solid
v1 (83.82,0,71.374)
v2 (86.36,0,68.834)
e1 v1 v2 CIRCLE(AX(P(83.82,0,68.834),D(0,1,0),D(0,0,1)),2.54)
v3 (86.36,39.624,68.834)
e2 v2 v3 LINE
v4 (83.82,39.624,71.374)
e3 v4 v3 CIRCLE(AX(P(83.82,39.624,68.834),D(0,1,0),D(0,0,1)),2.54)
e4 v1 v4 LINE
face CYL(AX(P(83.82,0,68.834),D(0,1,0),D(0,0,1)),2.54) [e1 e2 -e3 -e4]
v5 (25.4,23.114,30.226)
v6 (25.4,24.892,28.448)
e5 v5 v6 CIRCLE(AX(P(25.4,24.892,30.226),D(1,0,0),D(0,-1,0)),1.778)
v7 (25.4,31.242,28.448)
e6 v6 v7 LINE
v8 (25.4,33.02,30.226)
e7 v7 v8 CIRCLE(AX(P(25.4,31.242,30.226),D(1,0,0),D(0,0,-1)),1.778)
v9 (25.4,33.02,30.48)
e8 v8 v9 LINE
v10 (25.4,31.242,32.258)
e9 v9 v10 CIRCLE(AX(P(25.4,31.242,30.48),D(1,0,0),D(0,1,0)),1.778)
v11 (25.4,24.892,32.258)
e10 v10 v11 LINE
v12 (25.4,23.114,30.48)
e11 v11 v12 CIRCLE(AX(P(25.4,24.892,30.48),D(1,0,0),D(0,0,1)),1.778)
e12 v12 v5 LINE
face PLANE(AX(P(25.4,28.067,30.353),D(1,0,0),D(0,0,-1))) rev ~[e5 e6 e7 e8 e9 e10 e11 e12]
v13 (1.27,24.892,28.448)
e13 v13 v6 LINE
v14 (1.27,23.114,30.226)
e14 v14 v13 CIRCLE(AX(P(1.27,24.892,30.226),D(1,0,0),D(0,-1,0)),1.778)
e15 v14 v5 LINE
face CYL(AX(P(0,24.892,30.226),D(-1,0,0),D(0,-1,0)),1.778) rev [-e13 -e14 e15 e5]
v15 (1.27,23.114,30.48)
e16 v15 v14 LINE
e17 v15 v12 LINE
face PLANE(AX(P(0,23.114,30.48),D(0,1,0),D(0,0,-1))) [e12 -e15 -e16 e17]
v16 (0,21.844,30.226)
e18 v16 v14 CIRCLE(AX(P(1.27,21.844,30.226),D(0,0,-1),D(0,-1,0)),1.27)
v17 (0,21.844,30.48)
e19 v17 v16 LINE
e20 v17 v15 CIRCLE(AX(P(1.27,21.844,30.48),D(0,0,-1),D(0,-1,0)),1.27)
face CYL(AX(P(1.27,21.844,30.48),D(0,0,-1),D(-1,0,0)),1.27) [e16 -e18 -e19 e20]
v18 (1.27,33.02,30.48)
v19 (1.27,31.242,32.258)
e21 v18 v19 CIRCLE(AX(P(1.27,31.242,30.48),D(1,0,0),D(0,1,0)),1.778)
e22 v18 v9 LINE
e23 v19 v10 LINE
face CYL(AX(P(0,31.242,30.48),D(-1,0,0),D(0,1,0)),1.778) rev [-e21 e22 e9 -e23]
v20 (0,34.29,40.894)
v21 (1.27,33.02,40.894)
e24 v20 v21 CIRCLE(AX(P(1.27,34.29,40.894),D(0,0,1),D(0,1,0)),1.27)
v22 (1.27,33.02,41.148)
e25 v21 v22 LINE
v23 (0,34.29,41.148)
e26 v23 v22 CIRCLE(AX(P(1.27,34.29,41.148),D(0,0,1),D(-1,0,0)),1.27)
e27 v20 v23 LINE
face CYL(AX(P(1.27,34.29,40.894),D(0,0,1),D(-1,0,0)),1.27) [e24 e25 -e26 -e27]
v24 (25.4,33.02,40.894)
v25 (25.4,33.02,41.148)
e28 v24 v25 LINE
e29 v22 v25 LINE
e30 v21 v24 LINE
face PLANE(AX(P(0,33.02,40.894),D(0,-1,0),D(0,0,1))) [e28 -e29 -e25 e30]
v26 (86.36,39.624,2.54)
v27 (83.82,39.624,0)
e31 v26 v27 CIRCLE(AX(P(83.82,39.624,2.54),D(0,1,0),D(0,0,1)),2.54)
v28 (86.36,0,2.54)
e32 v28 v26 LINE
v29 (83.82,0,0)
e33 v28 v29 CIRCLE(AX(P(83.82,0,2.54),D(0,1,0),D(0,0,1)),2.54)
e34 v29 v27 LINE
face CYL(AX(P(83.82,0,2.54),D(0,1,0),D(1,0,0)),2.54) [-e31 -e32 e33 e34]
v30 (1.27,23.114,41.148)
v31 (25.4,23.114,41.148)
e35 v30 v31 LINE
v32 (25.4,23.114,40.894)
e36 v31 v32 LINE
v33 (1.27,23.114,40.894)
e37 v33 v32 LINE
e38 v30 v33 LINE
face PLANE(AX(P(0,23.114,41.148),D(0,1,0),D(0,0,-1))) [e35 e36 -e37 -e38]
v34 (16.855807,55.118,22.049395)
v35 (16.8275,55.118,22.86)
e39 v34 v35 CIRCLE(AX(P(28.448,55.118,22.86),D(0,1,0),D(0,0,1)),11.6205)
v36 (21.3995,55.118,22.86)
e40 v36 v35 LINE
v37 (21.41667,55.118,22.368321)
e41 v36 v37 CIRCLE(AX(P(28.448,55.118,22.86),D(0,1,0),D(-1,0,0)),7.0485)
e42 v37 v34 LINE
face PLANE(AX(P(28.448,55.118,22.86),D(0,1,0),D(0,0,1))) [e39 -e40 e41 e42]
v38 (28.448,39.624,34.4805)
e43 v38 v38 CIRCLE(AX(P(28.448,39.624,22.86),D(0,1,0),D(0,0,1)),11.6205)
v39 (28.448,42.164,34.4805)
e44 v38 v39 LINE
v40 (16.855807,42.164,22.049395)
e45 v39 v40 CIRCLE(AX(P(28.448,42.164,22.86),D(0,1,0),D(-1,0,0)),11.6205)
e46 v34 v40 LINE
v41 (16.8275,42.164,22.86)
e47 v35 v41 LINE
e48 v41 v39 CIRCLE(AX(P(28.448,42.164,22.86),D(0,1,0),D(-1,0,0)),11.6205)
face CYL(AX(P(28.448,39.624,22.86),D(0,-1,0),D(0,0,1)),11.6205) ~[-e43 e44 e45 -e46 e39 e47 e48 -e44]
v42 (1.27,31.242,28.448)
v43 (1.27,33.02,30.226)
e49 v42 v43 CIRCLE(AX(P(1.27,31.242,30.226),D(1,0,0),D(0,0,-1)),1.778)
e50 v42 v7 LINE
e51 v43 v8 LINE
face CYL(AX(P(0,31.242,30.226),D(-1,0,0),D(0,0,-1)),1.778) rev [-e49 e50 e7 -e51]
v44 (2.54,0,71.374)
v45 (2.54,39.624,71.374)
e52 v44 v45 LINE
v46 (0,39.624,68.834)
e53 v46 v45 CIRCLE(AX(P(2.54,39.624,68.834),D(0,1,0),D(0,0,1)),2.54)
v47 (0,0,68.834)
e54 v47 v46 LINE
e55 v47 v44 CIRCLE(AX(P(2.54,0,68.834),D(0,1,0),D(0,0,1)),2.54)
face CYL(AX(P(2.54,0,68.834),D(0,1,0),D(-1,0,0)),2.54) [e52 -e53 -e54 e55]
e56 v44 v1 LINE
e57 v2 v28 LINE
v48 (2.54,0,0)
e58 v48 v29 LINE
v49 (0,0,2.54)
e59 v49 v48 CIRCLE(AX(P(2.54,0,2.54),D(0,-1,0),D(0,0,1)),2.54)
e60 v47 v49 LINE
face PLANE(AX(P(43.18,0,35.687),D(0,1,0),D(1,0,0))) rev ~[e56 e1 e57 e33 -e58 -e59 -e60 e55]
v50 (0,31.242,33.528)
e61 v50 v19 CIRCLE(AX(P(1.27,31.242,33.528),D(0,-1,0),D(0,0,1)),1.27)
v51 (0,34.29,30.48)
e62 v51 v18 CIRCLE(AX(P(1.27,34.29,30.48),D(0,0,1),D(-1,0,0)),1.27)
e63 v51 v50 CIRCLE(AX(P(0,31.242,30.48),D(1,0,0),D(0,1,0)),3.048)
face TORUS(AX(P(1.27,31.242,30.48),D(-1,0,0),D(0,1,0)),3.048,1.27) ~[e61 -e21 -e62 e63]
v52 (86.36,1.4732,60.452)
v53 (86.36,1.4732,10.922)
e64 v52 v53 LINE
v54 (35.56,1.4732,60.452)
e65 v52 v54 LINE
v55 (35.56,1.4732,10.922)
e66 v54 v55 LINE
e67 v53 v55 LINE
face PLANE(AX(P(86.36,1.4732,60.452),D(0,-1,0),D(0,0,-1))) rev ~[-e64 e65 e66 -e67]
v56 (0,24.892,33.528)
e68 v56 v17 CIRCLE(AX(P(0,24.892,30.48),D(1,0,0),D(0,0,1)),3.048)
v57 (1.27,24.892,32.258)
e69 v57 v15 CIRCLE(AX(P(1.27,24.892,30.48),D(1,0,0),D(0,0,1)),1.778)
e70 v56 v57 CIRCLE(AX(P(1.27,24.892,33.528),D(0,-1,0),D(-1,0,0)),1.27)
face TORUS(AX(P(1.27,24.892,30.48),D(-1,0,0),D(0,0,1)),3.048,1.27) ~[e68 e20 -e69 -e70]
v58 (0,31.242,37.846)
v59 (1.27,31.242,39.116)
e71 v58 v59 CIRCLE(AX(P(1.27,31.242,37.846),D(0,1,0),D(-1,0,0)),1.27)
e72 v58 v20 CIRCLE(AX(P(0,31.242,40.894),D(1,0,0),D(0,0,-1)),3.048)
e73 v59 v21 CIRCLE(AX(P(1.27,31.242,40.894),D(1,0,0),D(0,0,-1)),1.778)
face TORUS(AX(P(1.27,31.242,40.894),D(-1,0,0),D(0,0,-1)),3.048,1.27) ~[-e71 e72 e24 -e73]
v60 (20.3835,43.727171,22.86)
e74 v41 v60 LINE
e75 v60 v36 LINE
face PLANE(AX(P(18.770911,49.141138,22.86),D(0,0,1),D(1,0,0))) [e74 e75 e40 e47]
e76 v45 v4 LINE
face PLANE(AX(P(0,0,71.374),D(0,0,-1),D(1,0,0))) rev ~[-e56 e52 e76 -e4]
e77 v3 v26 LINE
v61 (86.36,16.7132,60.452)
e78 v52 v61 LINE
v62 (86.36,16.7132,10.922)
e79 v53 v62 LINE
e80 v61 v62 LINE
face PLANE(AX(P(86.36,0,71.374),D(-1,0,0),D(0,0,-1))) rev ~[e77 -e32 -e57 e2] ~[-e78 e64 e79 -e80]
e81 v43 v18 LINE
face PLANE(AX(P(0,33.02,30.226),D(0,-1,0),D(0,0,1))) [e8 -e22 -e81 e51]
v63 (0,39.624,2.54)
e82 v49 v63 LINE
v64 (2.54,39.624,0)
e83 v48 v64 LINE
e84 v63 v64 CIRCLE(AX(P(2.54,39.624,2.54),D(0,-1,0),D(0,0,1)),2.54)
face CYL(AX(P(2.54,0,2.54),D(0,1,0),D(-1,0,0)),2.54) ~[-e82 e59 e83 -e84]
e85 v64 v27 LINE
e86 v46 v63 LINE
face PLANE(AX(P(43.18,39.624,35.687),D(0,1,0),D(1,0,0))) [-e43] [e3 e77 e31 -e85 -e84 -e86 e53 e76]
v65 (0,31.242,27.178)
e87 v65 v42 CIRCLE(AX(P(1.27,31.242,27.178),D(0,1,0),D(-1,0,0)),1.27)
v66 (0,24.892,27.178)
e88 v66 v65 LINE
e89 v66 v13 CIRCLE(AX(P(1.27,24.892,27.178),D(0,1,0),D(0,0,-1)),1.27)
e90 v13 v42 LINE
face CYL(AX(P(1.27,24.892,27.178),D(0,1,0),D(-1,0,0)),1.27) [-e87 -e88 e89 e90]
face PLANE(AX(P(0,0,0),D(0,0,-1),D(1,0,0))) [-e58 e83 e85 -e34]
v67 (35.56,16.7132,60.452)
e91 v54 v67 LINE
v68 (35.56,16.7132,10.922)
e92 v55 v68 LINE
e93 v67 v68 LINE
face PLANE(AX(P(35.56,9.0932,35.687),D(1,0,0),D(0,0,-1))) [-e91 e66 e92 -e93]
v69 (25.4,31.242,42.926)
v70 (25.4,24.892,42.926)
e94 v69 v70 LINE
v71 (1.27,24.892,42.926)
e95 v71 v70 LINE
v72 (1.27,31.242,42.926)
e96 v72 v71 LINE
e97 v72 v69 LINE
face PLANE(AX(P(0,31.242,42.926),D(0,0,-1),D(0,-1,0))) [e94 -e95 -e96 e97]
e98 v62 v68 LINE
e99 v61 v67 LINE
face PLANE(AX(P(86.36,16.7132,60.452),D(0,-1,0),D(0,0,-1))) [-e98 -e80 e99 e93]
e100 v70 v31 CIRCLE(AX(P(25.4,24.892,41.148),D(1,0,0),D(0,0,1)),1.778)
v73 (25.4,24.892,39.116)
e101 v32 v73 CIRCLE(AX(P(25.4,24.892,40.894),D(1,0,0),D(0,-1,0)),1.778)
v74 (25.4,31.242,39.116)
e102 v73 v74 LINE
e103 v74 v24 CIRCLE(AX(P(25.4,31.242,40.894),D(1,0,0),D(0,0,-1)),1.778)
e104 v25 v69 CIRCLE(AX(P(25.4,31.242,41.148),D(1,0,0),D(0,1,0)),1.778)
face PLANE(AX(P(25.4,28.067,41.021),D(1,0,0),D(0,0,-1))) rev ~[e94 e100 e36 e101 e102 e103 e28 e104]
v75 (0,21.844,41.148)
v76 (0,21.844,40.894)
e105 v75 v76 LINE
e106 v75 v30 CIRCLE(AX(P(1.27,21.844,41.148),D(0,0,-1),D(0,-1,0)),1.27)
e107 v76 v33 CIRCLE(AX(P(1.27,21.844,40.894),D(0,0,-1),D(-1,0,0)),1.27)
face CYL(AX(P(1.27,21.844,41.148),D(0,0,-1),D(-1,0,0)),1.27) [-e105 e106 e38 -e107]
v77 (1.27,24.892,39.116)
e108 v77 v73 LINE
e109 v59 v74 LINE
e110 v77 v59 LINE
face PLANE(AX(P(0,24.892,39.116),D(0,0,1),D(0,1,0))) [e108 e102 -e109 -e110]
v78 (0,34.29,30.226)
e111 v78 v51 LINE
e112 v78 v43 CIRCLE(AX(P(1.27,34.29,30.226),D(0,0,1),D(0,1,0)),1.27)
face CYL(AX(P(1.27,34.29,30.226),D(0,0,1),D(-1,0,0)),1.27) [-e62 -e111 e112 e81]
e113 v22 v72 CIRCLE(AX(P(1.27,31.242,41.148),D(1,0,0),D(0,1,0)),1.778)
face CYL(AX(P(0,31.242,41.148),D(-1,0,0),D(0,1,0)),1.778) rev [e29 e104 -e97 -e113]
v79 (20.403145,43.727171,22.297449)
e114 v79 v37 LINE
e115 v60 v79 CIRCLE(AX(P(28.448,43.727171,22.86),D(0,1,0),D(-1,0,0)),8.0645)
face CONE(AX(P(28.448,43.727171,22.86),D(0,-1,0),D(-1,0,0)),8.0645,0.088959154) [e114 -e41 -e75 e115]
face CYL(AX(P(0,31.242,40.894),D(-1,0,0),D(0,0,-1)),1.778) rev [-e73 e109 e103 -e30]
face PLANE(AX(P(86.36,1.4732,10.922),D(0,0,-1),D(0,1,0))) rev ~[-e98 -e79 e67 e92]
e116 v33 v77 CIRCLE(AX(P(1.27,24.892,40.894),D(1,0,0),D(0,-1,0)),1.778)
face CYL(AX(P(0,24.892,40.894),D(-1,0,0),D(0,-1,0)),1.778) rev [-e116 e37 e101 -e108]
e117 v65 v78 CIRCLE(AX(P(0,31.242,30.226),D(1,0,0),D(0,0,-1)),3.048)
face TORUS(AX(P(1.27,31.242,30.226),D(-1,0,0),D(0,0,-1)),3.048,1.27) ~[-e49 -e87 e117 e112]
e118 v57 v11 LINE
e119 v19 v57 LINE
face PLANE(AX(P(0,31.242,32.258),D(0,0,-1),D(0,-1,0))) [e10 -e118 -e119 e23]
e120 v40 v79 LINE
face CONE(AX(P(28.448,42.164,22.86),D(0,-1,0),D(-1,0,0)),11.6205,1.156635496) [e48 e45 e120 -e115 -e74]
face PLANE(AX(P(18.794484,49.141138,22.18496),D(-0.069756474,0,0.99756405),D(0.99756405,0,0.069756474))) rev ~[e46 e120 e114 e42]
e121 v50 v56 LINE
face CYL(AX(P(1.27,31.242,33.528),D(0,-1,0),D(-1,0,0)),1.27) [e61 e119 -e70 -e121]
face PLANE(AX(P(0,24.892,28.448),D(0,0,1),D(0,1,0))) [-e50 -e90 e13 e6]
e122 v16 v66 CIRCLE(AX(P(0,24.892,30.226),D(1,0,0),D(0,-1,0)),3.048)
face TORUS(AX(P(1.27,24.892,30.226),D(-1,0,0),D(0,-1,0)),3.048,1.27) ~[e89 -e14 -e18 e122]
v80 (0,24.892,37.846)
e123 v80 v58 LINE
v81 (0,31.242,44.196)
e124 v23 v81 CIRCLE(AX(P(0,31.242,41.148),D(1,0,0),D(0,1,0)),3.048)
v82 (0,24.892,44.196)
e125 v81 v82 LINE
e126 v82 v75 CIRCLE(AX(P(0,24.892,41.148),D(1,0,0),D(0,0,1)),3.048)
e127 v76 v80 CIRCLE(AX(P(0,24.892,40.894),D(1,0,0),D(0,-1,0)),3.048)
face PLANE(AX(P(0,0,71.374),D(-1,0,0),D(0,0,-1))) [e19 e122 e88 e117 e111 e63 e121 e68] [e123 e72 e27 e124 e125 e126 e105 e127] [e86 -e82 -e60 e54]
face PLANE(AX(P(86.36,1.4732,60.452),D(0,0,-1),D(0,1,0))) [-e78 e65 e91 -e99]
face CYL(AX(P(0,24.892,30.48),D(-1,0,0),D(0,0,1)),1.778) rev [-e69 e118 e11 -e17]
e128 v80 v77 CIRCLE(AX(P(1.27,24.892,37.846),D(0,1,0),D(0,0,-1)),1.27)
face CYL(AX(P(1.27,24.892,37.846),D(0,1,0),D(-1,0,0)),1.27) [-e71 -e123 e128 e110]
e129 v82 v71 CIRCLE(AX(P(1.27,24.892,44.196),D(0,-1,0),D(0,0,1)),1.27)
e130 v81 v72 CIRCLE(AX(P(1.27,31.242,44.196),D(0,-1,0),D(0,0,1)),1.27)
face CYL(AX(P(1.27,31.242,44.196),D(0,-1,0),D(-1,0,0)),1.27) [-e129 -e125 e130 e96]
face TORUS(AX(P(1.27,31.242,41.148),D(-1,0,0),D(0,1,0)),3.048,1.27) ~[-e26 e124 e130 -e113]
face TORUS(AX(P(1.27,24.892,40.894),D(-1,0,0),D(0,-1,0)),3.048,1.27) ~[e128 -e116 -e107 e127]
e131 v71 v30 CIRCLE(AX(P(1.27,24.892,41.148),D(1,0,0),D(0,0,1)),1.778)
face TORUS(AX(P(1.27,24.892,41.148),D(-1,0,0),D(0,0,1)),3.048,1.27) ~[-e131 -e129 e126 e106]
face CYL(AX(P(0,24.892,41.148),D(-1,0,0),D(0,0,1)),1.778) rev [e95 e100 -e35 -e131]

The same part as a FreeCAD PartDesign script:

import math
import FreeCAD as App
import Part
import Sketcher
from FreeCAD import Vector
Q = App.Units.Quantity


def edges_at(feature, points):
    """Names of the edges that pass closest to the given points."""
    edges = feature.Shape.Edges
    near = lambda p: min(range(len(edges)), key=lambda i: edges[i].distToShape(Part.Vertex(*p))[0])
    return sorted({f"Edge{near(p) + 1}" for p in points})

doc = App.newDocument("Part")
body = doc.addObject("PartDesign::Body", "Body")

# Sketch on XZ plane
sketch1 = doc.addObject("Sketcher::SketchObject", "Sketch")
body.addObject(sketch1)
sketch1.AttachmentSupport = (doc.XZ_Plane, [""])
sketch1.MapMode = "FlatFace"
sketch1.addGeometry([
    Part.LineSegment(Vector(0, 0, 0), Vector(0, 71.374, 0)),
    Part.LineSegment(Vector(0, 71.374, 0), Vector(86.36, 71.374, 0)),
    Part.LineSegment(Vector(86.36, 71.374, 0), Vector(86.36, 0, 0)),
    Part.LineSegment(Vector(86.36, 0, 0), Vector(0, 0, 0)),
], False)
sketch1.addConstraint([
    Sketcher.Constraint("Coincident", 0, 2, 1, 1),
    Sketcher.Constraint("Coincident", 1, 2, 2, 1),
    Sketcher.Constraint("Coincident", 2, 2, 3, 1),
    Sketcher.Constraint("Coincident", 3, 2, 0, 1),
    Sketcher.Constraint("Vertical", 0),
    Sketcher.Constraint("Horizontal", 1),
    Sketcher.Constraint("Vertical", 2),
    Sketcher.Constraint("Horizontal", 3),
    Sketcher.Constraint("Coincident", 3, 2, -1, 1),
    Sketcher.Constraint("DistanceX", 1, 1, 1, 2, Q("3.4 in")),
    Sketcher.Constraint("DistanceY", 0, 1, 0, 2, Q("2.81 in")),
])
pad1 = doc.addObject("PartDesign::Pad", "Pad")
body.addObject(pad1)
pad1.Profile = sketch1
pad1.Length = Q("1.56 in")
pad1.Reversed = True
doc.recompute()

fillet = doc.addObject("PartDesign::Fillet", "Fillet")
body.addObject(fillet)
fillet.Base = (pad1, edges_at(pad1, [
    (0, 19.812, 0),
    (86.36, 19.812, 0),
    (86.36, 19.812, 71.374),
    (0, 19.812, 71.374),
]))
fillet.Radius = Q("0.1 in")

# Sketch on YZ plane
sketch2 = doc.addObject("Sketcher::SketchObject", "Sketch001")
body.addObject(sketch2)
sketch2.AttachmentSupport = (doc.YZ_Plane, [""])
sketch2.MapMode = "FlatFace"
sketch2.addGeometry([
    Part.LineSegment(Vector(33.02, 30.48, 0), Vector(33.02, 30.226, 0)),  # 0
    Part.ArcOfCircle(Part.Circle(Vector(31.242, 30.226, 0), Vector(0, 0, 1), 1.778), math.radians(-90), math.radians(0)),  # 1
    Part.LineSegment(Vector(31.242, 28.448, 0), Vector(24.892, 28.448, 0)),  # 2
    Part.ArcOfCircle(Part.Circle(Vector(24.892, 30.226, 0), Vector(0, 0, 1), 1.778), math.radians(180), math.radians(270)),  # 3
    Part.LineSegment(Vector(23.114, 30.226, 0), Vector(23.114, 30.48, 0)),  # 4
    Part.ArcOfCircle(Part.Circle(Vector(24.892, 30.48, 0), Vector(0, 0, 1), 1.778), math.radians(90), math.radians(180)),  # 5
    Part.LineSegment(Vector(24.892, 32.258, 0), Vector(31.242, 32.258, 0)),  # 6
    Part.ArcOfCircle(Part.Circle(Vector(31.242, 30.48, 0), Vector(0, 0, 1), 1.778), math.radians(0), math.radians(90)),  # 7
    Part.LineSegment(Vector(23.114, 40.894, 0), Vector(23.114, 41.148, 0)),  # 8
    Part.ArcOfCircle(Part.Circle(Vector(24.892, 41.148, 0), Vector(0, 0, 1), 1.778), math.radians(90), math.radians(180)),  # 9
    Part.LineSegment(Vector(24.892, 42.926, 0), Vector(31.242, 42.926, 0)),  # 10
    Part.ArcOfCircle(Part.Circle(Vector(31.242, 41.148, 0), Vector(0, 0, 1), 1.778), math.radians(0), math.radians(90)),  # 11
    Part.LineSegment(Vector(33.02, 41.148, 0), Vector(33.02, 40.894, 0)),  # 12
    Part.ArcOfCircle(Part.Circle(Vector(31.242, 40.894, 0), Vector(0, 0, 1), 1.778), math.radians(-90), math.radians(0)),  # 13
    Part.LineSegment(Vector(31.242, 39.116, 0), Vector(24.892, 39.116, 0)),  # 14
    Part.ArcOfCircle(Part.Circle(Vector(24.892, 40.894, 0), Vector(0, 0, 1), 1.778), math.radians(180), math.radians(270)),  # 15
], False)
sketch2.addConstraint([
    Sketcher.Constraint("Tangent", 0, 2, 1, 2),
    Sketcher.Constraint("Tangent", 1, 1, 2, 1),
    Sketcher.Constraint("Tangent", 2, 2, 3, 2),
    Sketcher.Constraint("Tangent", 3, 1, 4, 1),
    Sketcher.Constraint("Tangent", 4, 2, 5, 2),
    Sketcher.Constraint("Tangent", 5, 1, 6, 1),
    Sketcher.Constraint("Tangent", 6, 2, 7, 2),
    Sketcher.Constraint("Tangent", 7, 1, 0, 1),
    Sketcher.Constraint("Tangent", 8, 2, 9, 2),
    Sketcher.Constraint("Tangent", 9, 1, 10, 1),
    Sketcher.Constraint("Tangent", 10, 2, 11, 2),
    Sketcher.Constraint("Tangent", 11, 1, 12, 1),
    Sketcher.Constraint("Tangent", 12, 2, 13, 2),
    Sketcher.Constraint("Tangent", 13, 1, 14, 1),
    Sketcher.Constraint("Tangent", 14, 2, 15, 2),
    Sketcher.Constraint("Tangent", 15, 1, 8, 1),
    Sketcher.Constraint("Vertical", 0),
    Sketcher.Constraint("Horizontal", 2),
    Sketcher.Constraint("Vertical", 4),
    Sketcher.Constraint("Horizontal", 6),
    Sketcher.Constraint("Vertical", 8),
    Sketcher.Constraint("Horizontal", 10),
    Sketcher.Constraint("Vertical", 12),
    Sketcher.Constraint("Horizontal", 14),
    Sketcher.Constraint("Equal", 1, 3),
    Sketcher.Constraint("Equal", 3, 5),
    Sketcher.Constraint("Equal", 5, 7),
    Sketcher.Constraint("Equal", 7, 9),
    Sketcher.Constraint("Equal", 9, 11),
    Sketcher.Constraint("Equal", 11, 13),
    Sketcher.Constraint("Equal", 13, 15),
    Sketcher.Constraint("Vertical", 5, 3, 9, 3),
    Sketcher.Constraint("Vertical", 7, 3, 11, 3),
    Sketcher.Constraint("Equal", 4, 8),
    Sketcher.Constraint("Radius", 1, Q("0.07 in")),
    Sketcher.Constraint("DistanceX", 2, 2, 2, 1, Q("0.25 in")),
    Sketcher.Constraint("DistanceY", 0, 2, 0, 1, Q("0.01 in")),
    Sketcher.Constraint("DistanceY", -1, 1, 5, 3, Q("1.2 in")),
    Sketcher.Constraint("DistanceX", -1, 1, 0, 2, Q("1.3 in")),
    Sketcher.Constraint("DistanceY", -1, 1, 9, 3, Q("1.62 in")),
])
pocket1 = doc.addObject("PartDesign::Pocket", "Pocket")
body.addObject(pocket1)
pocket1.Profile = sketch2
pocket1.Length = Q("1 in")
pocket1.Reversed = True
doc.recompute()

fillet2 = doc.addObject("PartDesign::Fillet", "Fillet001")
body.addObject(fillet2)
fillet2.Base = (pocket1, edges_at(pocket1, [
    (0, 23.635, 28.969),
    (0, 23.114, 30.353),
    (0, 23.635, 31.737),
    (0, 28.067, 32.258),
    (0, 32.499, 31.737),
    (0, 33.02, 30.353),
    (0, 32.499, 28.969),
    (0, 28.067, 28.448),
    (0, 23.635, 42.405),
    (0, 28.067, 42.926),
    (0, 32.499, 42.405),
    (0, 33.02, 41.021),
    (0, 32.499, 39.637),
    (0, 28.067, 39.116),
    (0, 23.635, 39.637),
    (0, 23.114, 41.021),
]))
fillet2.Radius = Q("0.05 in")

# Sketch on YZ plane
sketch3 = doc.addObject("Sketcher::SketchObject", "Sketch002")
body.addObject(sketch3)
sketch3.AttachmentSupport = (doc.YZ_Plane, [""])
sketch3.MapMode = "FlatFace"
sketch3.AttachmentOffset = App.Placement(Vector(0, 0, 3.4 * 25.4), App.Rotation())
sketch3.addGeometry([
    Part.LineSegment(Vector(16.7132, 60.452, 0), Vector(1.4732, 60.452, 0)),
    Part.LineSegment(Vector(1.4732, 60.452, 0), Vector(1.4732, 10.922, 0)),
    Part.LineSegment(Vector(1.4732, 10.922, 0), Vector(16.7132, 10.922, 0)),
    Part.LineSegment(Vector(16.7132, 10.922, 0), Vector(16.7132, 60.452, 0)),
], False)
sketch3.addConstraint([
    Sketcher.Constraint("Coincident", 0, 2, 1, 1),
    Sketcher.Constraint("Coincident", 1, 2, 2, 1),
    Sketcher.Constraint("Coincident", 2, 2, 3, 1),
    Sketcher.Constraint("Coincident", 3, 2, 0, 1),
    Sketcher.Constraint("Horizontal", 0),
    Sketcher.Constraint("Vertical", 1),
    Sketcher.Constraint("Horizontal", 2),
    Sketcher.Constraint("Vertical", 3),
    Sketcher.Constraint("DistanceX", 0, 2, 0, 1, Q("0.6 in")),
    Sketcher.Constraint("DistanceY", 1, 2, 1, 1, Q("1.95 in")),
    Sketcher.Constraint("DistanceY", -1, 1, 0, 2, Q("2.38 in")),
    Sketcher.Constraint("DistanceX", -1, 1, 0, 2, Q("0.058 in")),
])
pocket2 = doc.addObject("PartDesign::Pocket", "Pocket001")
body.addObject(pocket2)
pocket2.Profile = sketch3
pocket2.Length = Q("2 in")

# Sketch on XZ plane
sketch4 = doc.addObject("Sketcher::SketchObject", "Sketch003")
body.addObject(sketch4)
sketch4.AttachmentSupport = (doc.XZ_Plane, [""])
sketch4.MapMode = "FlatFace"
sketch4.AttachmentOffset = App.Placement(Vector(0, 0, -1.56 * 25.4), App.Rotation())
sketch4.addGeometry(Part.Circle(Vector(28.448, 22.86, 0), Vector(0, 0, 1), 11.6205), False)
sketch4.addConstraint([
    Sketcher.Constraint("Diameter", 0, Q("0.915 in")),
    Sketcher.Constraint("DistanceY", -1, 1, 0, 3, Q("0.9 in")),
    Sketcher.Constraint("DistanceX", -1, 1, 0, 3, Q("1.12 in")),
])
pad2 = doc.addObject("PartDesign::Pad", "Pad001")
body.addObject(pad2)
pad2.Profile = sketch4
pad2.Length = Q("0.61 in")
pad2.Reversed = True

# Sketch on XY plane
sketch5 = doc.addObject("Sketcher::SketchObject", "Sketch004")
body.addObject(sketch5)
sketch5.AttachmentSupport = (doc.XY_Plane, [""])
sketch5.MapMode = "FlatFace"
sketch5.AttachmentOffset = App.Placement(Vector(0, 0, 0.9 * 25.4), App.Rotation())
sketch5.addGeometry([
    Part.LineSegment(Vector(20.3835, 43.727171, 0), Vector(16.8275, 42.164, 0)),
    Part.LineSegment(Vector(16.8275, 42.164, 0), Vector(16.8275, 55.118, 0)),
    Part.LineSegment(Vector(16.8275, 55.118, 0), Vector(21.3995, 55.118, 0)),
    Part.LineSegment(Vector(21.3995, 55.118, 0), Vector(20.3835, 43.727171, 0)),
], False)
sketch5.addGeometry(Part.LineSegment(Vector(28.448, 42.164, 0), Vector(28.448, 55.118, 0)), True)  # axis
sketch5.addConstraint([
    Sketcher.Constraint("Coincident", 0, 2, 1, 1),
    Sketcher.Constraint("Coincident", 1, 2, 2, 1),
    Sketcher.Constraint("Coincident", 2, 2, 3, 1),
    Sketcher.Constraint("Coincident", 3, 2, 0, 1),
    Sketcher.Constraint("Vertical", 1),
    Sketcher.Constraint("Horizontal", 2),
    Sketcher.Constraint("Vertical", 4),
    Sketcher.Constraint("Horizontal", 0, 2, 4, 1),
    Sketcher.Constraint("Horizontal", 2, 2, 4, 2),
    Sketcher.Constraint("DistanceX", 2, 1, 2, 2, Q("0.18 in")),
    Sketcher.Constraint("DistanceY", 1, 1, 1, 2, Q("0.51 in")),
    Sketcher.Constraint("DistanceY", -1, 1, 0, 2, Q("1.66 in")),
    Sketcher.Constraint("DistanceX", -1, 1, 4, 1, Q("1.12 in")),
    Sketcher.Constraint("DistanceX", 0, 2, 3, 2, Q("0.14 in")),
    Sketcher.Constraint("DistanceX", -1, 1, 0, 2, Q("0.6625 in")),
    Sketcher.Constraint("Distance", 0, 3.88441),
])
groove = doc.addObject("PartDesign::Groove", "Groove")
body.addObject(groove)
groove.Profile = sketch5
groove.ReferenceAxis = (sketch5, ["Axis0"])
groove.Angle = 356

doc.recompute()
